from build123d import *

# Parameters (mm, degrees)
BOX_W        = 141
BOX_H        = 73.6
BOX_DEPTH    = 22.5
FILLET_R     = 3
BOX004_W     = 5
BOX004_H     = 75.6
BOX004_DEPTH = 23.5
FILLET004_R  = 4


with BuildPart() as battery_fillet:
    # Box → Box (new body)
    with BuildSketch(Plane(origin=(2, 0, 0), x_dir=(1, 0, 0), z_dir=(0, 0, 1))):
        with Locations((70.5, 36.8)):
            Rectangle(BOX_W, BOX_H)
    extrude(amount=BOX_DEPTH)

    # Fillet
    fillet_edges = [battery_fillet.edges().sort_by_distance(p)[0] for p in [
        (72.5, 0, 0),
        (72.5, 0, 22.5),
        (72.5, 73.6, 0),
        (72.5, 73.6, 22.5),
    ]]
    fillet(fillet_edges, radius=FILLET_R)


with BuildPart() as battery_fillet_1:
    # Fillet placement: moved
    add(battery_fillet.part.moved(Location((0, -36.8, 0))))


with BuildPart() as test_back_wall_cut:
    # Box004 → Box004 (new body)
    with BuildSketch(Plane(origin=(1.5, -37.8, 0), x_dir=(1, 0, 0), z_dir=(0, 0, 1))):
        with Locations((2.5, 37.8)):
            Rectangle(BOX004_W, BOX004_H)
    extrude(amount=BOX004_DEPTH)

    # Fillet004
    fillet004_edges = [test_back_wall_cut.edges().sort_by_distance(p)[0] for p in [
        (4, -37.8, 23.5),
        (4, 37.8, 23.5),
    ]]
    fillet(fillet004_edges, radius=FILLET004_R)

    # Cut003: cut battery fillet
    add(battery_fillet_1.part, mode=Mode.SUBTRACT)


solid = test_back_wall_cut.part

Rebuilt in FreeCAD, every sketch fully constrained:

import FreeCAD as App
import Part
import Sketcher
from FreeCAD import Vector
Q = App.Units.Quantity


def edges_at(feature, points):
    """Names of the edges that pass closest to the given points."""
    edges = feature.Shape.Edges
    near = lambda p: min(range(len(edges)), key=lambda i: edges[i].distToShape(Part.Vertex(*p))[0])
    return sorted({f"Edge{near(p) + 1}" for p in points})

doc = App.newDocument("Part")
body = doc.addObject("PartDesign::Body", "Body")

sketch1 = body.newObject("Sketcher::SketchObject", "Sketch")
sketch1.AttachmentSupport = (doc.getObject("XY_Plane"), [""])
sketch1.MapMode = "FlatFace"
sketch1.addGeometry([
    Part.LineSegment(Vector(2, 74, 0), Vector(2, 0, 0)),
    Part.LineSegment(Vector(2, 0, 0), Vector(143, 0, 0)),
    Part.LineSegment(Vector(143, 0, 0), Vector(143, 74, 0)),
    Part.LineSegment(Vector(143, 74, 0), Vector(2, 74, 0)),
], False)
sketch1.addConstraint([
    Sketcher.Constraint("Coincident", 0, 2, 1, 1),
    Sketcher.Constraint("Coincident", 1, 2, 2, 1),
    Sketcher.Constraint("Coincident", 2, 2, 3, 1),
    Sketcher.Constraint("Coincident", 3, 2, 0, 1),
    Sketcher.Constraint("Vertical", 0),
    Sketcher.Constraint("Horizontal", 1),
    Sketcher.Constraint("Vertical", 2),
    Sketcher.Constraint("Horizontal", 3),
    Sketcher.Constraint("PointOnObject", 0, 2, -1),
    Sketcher.Constraint("DistanceX", 1, 1, 1, 2, Q("141 mm")),
    Sketcher.Constraint("DistanceY", 0, 2, 0, 1, Q("73.6 mm")),
    Sketcher.Constraint("DistanceX", -1, 1, 0, 2, Q("2 mm")),
])
pad1 = body.newObject("PartDesign::Pad", "Pad")
pad1.Profile = sketch1
pad1.Length = 22.5
doc.recompute()

fillet = body.newObject("PartDesign::Fillet", "Fillet")
fillet.Base = (pad1, edges_at(pad1, [
    (72.5, 0, 0),
    (72.5, 0, 22.5),
    (72.5, 73.6, 0),
    (72.5, 73.6, 22.5),
]))
fillet.Radius = 3
body2 = doc.addObject("PartDesign::Body", "Body001")
doc.recompute()

body.Placement = App.Placement(Vector(0, -36.8, 0), App.Rotation(Vector(0, 0, 1), 0))
boolean = body2.newObject("PartDesign::Boolean", "Boolean")
boolean.Type = "Fuse"
boolean.addObjects([body])
body3 = doc.addObject("PartDesign::Body", "Body002")

sketch2 = body3.newObject("Sketcher::SketchObject", "Sketch001")
sketch2.AttachmentSupport = (doc.getObject("XY_Plane002"), [""])
sketch2.MapMode = "FlatFace"
sketch2.addGeometry([
    Part.LineSegment(Vector(2, 38, 0), Vector(2, -38, 0)),
    Part.LineSegment(Vector(2, -38, 0), Vector(6, -38, 0)),
    Part.LineSegment(Vector(6, -38, 0), Vector(6, 38, 0)),
    Part.LineSegment(Vector(6, 38, 0), Vector(2, 38, 0)),
], False)
sketch2.addConstraint([
    Sketcher.Constraint("Coincident", 0, 2, 1, 1),
    Sketcher.Constraint("Coincident", 1, 2, 2, 1),
    Sketcher.Constraint("Coincident", 2, 2, 3, 1),
    Sketcher.Constraint("Coincident", 3, 2, 0, 1),
    Sketcher.Constraint("Vertical", 0),
    Sketcher.Constraint("Horizontal", 1),
    Sketcher.Constraint("Vertical", 2),
    Sketcher.Constraint("Horizontal", 3),
    Sketcher.Constraint("DistanceX", 1, 1, 1, 2, Q("5 mm")),
    Sketcher.Constraint("DistanceY", 0, 2, 0, 1, Q("75.6 mm")),
    Sketcher.Constraint("DistanceX", -1, 1, 0, 2, Q("1.5 mm")),
    Sketcher.Constraint("DistanceY", 0, 2, -1, 1, Q("37.8 mm")),
])
pad2 = body3.newObject("PartDesign::Pad", "Pad001")
pad2.Profile = sketch2
pad2.Length = 23.5
doc.recompute()

fillet2 = body3.newObject("PartDesign::Fillet", "Fillet001")
fillet2.Base = (pad2, edges_at(pad2, [(4, -37.8, 23.5), (4, 37.8, 23.5)]))
fillet2.Radius = 4
doc.recompute()

boolean2 = body3.newObject("PartDesign::Boolean", "Boolean001")
boolean2.Type = "Cut"
boolean2.addObjects([body2])

doc.recompute()
